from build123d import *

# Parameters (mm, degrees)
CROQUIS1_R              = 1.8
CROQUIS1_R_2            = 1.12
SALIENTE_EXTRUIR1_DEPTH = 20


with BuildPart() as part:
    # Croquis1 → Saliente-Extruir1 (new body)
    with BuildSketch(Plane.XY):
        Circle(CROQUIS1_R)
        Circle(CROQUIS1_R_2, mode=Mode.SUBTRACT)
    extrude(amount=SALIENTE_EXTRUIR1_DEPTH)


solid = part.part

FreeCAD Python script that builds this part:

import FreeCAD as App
import Part
import Sketcher
Q = App.Units.Quantity

doc = App.newDocument("Part")
body = doc.addObject("PartDesign::Body", "Body")

sketch1 = body.newObject("Sketcher::SketchObject", "Sketch")
sketch1.AttachmentSupport = (doc.getObject("XY_Plane"), [""])
sketch1.MapMode = "FlatFace"
sketch1.addGeometry([
    Part.Circle(App.Vector(0, 0, 0), App.Vector(0, 0, 1), 1.8),
    Part.Circle(App.Vector(0, 0, 0), App.Vector(0, 0, 1), 1.12),
], False)
sketch1.addConstraint([
    Sketcher.Constraint("Coincident", 0, 3, -1, 1),
    Sketcher.Constraint("Coincident", 1, 3, -1, 1),
    Sketcher.Constraint("Diameter", 0, Q("3.6 mm")),
    Sketcher.Constraint("Diameter", 1, Q("2.24 mm")),
])
pad1 = body.newObject("PartDesign::Pad", "Pad")
pad1.Profile = sketch1
pad1.Length = 20

doc.recompute()
